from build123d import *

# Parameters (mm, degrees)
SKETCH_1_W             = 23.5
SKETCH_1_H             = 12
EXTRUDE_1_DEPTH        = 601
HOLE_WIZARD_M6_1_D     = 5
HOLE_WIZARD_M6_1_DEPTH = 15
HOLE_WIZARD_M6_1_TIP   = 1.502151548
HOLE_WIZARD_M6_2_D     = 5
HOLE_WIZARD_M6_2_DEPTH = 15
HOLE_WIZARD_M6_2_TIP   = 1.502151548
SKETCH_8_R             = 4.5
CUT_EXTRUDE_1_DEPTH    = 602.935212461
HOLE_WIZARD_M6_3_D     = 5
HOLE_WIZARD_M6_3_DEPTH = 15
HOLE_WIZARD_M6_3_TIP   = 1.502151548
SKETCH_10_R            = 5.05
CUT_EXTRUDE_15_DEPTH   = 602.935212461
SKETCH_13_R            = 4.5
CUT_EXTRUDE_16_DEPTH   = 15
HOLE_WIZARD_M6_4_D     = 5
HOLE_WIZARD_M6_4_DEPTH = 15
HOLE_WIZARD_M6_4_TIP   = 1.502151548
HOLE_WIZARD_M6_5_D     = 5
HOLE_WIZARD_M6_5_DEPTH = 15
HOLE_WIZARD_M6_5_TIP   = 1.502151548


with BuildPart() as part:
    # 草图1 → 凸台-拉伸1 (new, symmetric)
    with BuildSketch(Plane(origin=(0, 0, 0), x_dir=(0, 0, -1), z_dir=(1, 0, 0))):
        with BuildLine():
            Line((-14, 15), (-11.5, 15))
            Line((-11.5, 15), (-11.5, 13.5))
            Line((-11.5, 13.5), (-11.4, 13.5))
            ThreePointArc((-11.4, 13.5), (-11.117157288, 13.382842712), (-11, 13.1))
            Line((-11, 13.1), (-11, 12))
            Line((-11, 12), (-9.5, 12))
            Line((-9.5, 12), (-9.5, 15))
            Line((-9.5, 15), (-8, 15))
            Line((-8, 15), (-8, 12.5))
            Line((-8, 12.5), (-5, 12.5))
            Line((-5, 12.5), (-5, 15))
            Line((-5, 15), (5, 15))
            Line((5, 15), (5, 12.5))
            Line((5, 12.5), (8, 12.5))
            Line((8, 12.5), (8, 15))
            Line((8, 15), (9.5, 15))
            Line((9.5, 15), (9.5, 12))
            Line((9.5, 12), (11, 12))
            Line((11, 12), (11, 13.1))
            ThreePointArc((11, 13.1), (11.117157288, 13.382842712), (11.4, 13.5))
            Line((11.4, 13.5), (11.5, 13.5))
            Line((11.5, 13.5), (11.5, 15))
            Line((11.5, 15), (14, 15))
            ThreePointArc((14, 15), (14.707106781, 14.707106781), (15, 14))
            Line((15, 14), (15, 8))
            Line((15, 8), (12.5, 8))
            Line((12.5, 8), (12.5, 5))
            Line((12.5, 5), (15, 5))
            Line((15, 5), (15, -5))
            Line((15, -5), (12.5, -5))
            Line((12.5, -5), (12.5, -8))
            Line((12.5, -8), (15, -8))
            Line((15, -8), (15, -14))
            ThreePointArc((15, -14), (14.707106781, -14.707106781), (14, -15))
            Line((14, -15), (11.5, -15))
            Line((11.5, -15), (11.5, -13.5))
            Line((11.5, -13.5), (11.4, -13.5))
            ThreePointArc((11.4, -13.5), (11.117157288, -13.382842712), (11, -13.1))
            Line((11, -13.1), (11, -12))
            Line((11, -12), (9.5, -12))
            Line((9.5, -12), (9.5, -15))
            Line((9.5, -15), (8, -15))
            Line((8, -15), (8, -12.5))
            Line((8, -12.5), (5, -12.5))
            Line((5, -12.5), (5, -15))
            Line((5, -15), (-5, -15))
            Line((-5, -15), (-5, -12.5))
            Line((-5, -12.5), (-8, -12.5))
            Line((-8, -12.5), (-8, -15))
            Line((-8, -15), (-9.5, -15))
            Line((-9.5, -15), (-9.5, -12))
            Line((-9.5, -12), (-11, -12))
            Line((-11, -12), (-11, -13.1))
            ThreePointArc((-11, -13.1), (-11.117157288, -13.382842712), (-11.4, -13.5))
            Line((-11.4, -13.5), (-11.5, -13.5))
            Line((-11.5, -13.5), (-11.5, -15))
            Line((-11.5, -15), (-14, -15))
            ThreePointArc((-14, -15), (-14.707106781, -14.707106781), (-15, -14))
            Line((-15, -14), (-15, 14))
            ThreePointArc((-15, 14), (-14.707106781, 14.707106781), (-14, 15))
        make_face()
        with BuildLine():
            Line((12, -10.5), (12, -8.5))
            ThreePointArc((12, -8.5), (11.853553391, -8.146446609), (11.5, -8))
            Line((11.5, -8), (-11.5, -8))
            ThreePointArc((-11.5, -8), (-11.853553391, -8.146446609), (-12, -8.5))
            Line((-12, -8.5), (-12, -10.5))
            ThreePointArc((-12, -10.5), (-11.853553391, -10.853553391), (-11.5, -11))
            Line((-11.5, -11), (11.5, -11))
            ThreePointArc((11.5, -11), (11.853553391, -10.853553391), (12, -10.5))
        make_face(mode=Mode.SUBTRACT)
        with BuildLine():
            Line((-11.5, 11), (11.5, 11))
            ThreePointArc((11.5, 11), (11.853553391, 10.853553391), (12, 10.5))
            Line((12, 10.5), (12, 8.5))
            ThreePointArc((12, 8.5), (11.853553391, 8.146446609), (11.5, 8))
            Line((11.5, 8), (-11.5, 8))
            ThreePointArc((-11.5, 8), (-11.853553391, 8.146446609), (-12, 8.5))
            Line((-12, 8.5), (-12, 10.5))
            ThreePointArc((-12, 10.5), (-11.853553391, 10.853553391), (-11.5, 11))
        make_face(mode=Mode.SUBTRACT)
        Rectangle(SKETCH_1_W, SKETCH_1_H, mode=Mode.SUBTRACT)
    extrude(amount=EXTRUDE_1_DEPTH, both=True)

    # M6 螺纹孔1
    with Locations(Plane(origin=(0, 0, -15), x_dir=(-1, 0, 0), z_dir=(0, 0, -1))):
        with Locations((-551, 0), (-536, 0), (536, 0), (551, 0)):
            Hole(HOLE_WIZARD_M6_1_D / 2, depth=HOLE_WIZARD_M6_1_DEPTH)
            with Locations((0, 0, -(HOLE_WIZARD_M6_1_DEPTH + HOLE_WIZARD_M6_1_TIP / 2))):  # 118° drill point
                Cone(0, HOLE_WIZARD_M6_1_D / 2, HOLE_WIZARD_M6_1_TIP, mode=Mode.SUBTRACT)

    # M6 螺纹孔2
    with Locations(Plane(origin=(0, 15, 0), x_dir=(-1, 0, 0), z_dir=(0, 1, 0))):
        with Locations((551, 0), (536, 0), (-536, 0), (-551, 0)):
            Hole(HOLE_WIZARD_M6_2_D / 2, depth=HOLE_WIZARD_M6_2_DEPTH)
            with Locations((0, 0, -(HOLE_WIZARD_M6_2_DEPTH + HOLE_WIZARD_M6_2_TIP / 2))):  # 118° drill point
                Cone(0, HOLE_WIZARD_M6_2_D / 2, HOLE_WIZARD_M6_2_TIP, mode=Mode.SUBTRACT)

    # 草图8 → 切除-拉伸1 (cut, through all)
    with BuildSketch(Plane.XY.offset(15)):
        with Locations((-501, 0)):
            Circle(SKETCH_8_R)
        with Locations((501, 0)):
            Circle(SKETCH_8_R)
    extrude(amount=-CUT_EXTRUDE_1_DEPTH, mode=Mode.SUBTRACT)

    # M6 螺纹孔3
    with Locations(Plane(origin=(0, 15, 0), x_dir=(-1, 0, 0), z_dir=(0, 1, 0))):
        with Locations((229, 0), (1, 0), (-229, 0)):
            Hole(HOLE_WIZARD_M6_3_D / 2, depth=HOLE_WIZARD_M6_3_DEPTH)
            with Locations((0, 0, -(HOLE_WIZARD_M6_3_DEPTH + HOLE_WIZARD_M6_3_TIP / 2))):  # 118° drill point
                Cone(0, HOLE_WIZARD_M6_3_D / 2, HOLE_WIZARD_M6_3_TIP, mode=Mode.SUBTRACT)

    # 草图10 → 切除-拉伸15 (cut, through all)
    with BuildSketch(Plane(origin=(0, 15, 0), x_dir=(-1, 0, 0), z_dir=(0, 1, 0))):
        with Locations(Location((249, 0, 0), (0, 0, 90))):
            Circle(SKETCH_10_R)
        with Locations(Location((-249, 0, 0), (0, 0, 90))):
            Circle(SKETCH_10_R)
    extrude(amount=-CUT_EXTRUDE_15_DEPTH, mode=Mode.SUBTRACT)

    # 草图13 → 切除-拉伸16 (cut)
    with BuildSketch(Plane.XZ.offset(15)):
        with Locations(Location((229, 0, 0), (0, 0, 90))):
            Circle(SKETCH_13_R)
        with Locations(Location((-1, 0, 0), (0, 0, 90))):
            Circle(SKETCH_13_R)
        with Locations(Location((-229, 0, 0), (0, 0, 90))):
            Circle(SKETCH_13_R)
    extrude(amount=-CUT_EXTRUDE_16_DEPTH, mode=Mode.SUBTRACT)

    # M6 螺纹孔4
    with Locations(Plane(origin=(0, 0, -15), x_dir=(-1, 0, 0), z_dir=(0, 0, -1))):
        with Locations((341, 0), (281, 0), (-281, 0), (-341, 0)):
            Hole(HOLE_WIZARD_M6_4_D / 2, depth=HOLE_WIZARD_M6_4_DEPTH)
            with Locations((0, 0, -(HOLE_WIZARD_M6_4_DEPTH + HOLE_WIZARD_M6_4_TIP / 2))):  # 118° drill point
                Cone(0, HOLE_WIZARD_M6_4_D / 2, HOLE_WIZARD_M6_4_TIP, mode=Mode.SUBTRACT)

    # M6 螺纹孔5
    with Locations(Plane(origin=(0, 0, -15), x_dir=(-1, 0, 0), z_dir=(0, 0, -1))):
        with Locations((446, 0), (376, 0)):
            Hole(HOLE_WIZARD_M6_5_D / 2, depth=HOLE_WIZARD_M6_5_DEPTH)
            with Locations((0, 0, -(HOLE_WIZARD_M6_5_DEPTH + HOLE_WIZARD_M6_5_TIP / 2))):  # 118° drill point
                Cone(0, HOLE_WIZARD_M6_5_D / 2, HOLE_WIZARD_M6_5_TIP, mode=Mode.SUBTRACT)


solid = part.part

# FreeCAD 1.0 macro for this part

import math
import FreeCAD as App
import Part
import Sketcher

V = App.Vector
Q = App.Units.Quantity


def add_polygon(sketch, points):
    """Adds a closed chain of lines whose ends are joined by coincident constraints."""
    first, n = sketch.GeometryCount, len(points)
    for a, b in zip(points, points[1:] + points[:1]):
        sketch.addGeometry(Part.LineSegment(App.Vector(*a, 0), App.Vector(*b, 0)), False)
    for i in range(n):
        sketch.addConstraint(Sketcher.Constraint("Coincident", first + i, 2, first + (i + 1) % n, 1))

doc = App.newDocument("Part")
body = doc.addObject("PartDesign::Body", "Body")

sketch1 = body.newObject("Sketcher::SketchObject", "Sketch")
sketch1.AttachmentSupport = (doc.getObject("YZ_Plane"), [""])
sketch1.MapMode = "FlatFace"
sketch1.addGeometry(Part.LineSegment(V(15, 11.5, 0), V(15, 14, 0)), False)
sketch1.addGeometry(Part.ArcOfCircle(Part.Circle(V(14, 14, 0), V(0, 0, 1), 1), math.radians(0), math.radians(90)), False)
sketch1.addGeometry(Part.LineSegment(V(14, 15, 0), V(-14, 15, 0)), False)
sketch1.addGeometry(Part.ArcOfCircle(Part.Circle(V(-14, 14, 0), V(0, 0, 1), 1), math.radians(90), math.radians(180)), False)
sketch1.addGeometry(Part.LineSegment(V(-15, 14, 0), V(-15, 11.5, 0)), False)
sketch1.addGeometry(Part.LineSegment(V(-15, 11.5, 0), V(-13.5, 11.5, 0)), False)
sketch1.addGeometry(Part.LineSegment(V(-13.5, 11.5, 0), V(-13.5, 11.4, 0)), False)
sketch1.addGeometry(Part.ArcOfCircle(Part.Circle(V(-13.1, 11.4, 0), V(0, 0, 1), 0.4), math.radians(-180), math.radians(-90)), False)
sketch1.addGeometry(Part.LineSegment(V(-13.1, 11, 0), V(-12, 11, 0)), False)
sketch1.addGeometry(Part.LineSegment(V(-12, 11, 0), V(-12, 9.5, 0)), False)
sketch1.addGeometry(Part.LineSegment(V(-12, 9.5, 0), V(-15, 9.5, 0)), False)
sketch1.addGeometry(Part.LineSegment(V(-15, 9.5, 0), V(-15, 8, 0)), False)
sketch1.addGeometry(Part.LineSegment(V(-15, 8, 0), V(-12.5, 8, 0)), False)
sketch1.addGeometry(Part.LineSegment(V(-12.5, 8, 0), V(-12.5, 5, 0)), False)
sketch1.addGeometry(Part.LineSegment(V(-12.5, 5, 0), V(-15, 5, 0)), False)
sketch1.addGeometry(Part.LineSegment(V(-15, 5, 0), V(-15, -5, 0)), False)
sketch1.addGeometry(Part.LineSegment(V(-15, -5, 0), V(-12.5, -5, 0)), False)
sketch1.addGeometry(Part.LineSegment(V(-12.5, -5, 0), V(-12.5, -8, 0)), False)
sketch1.addGeometry(Part.LineSegment(V(-12.5, -8, 0), V(-15, -8, 0)), False)
sketch1.addGeometry(Part.LineSegment(V(-15, -8, 0), V(-15, -9.5, 0)), False)
sketch1.addGeometry(Part.LineSegment(V(-15, -9.5, 0), V(-12, -9.5, 0)), False)
sketch1.addGeometry(Part.LineSegment(V(-12, -9.5, 0), V(-12, -11, 0)), False)
sketch1.addGeometry(Part.LineSegment(V(-12, -11, 0), V(-13.1, -11, 0)), False)
sketch1.addGeometry(Part.ArcOfCircle(Part.Circle(V(-13.1, -11.4, 0), V(0, 0, 1), 0.4), math.radians(90), math.radians(180)), False)
sketch1.addGeometry(Part.LineSegment(V(-13.5, -11.4, 0), V(-13.5, -11.5, 0)), False)
sketch1.addGeometry(Part.LineSegment(V(-13.5, -11.5, 0), V(-15, -11.5, 0)), False)
sketch1.addGeometry(Part.LineSegment(V(-15, -11.5, 0), V(-15, -14, 0)), False)
sketch1.addGeometry(Part.ArcOfCircle(Part.Circle(V(-14, -14, 0), V(0, 0, 1), 1), math.radians(-180), math.radians(-90)), False)
sketch1.addGeometry(Part.LineSegment(V(-14, -15, 0), V(-8, -15, 0)), False)
sketch1.addGeometry(Part.LineSegment(V(-8, -15, 0), V(-8, -12.5, 0)), False)
sketch1.addGeometry(Part.LineSegment(V(-8, -12.5, 0), V(-5, -12.5, 0)), False)
sketch1.addGeometry(Part.LineSegment(V(-5, -12.5, 0), V(-5, -15, 0)), False)
sketch1.addGeometry(Part.LineSegment(V(-5, -15, 0), V(5, -15, 0)), False)
sketch1.addGeometry(Part.LineSegment(V(5, -15, 0), V(5, -12.5, 0)), False)
sketch1.addGeometry(Part.LineSegment(V(5, -12.5, 0), V(8, -12.5, 0)), False)
sketch1.addGeometry(Part.LineSegment(V(8, -12.5, 0), V(8, -15, 0)), False)
sketch1.addGeometry(Part.LineSegment(V(8, -15, 0), V(14, -15, 0)), False)
sketch1.addGeometry(Part.ArcOfCircle(Part.Circle(V(14, -14, 0), V(0, 0, 1), 1), math.radians(-90), math.radians(0)), False)
sketch1.addGeometry(Part.LineSegment(V(15, -14, 0), V(15, -11.5, 0)), False)
sketch1.addGeometry(Part.LineSegment(V(15, -11.5, 0), V(13.5, -11.5, 0)), False)
sketch1.addGeometry(Part.LineSegment(V(13.5, -11.5, 0), V(13.5, -11.4, 0)), False)
sketch1.addGeometry(Part.ArcOfCircle(Part.Circle(V(13.1, -11.4, 0), V(0, 0, 1), 0.4), math.radians(0), math.radians(90)), False)
sketch1.addGeometry(Part.LineSegment(V(13.1, -11, 0), V(12, -11, 0)), False)
sketch1.addGeometry(Part.LineSegment(V(12, -11, 0), V(12, -9.5, 0)), False)
sketch1.addGeometry(Part.LineSegment(V(12, -9.5, 0), V(15, -9.5, 0)), False)
sketch1.addGeometry(Part.LineSegment(V(15, -9.5, 0), V(15, -8, 0)), False)
sketch1.addGeometry(Part.LineSegment(V(15, -8, 0), V(12.5, -8, 0)), False)
sketch1.addGeometry(Part.LineSegment(V(12.5, -8, 0), V(12.5, -5, 0)), False)
sketch1.addGeometry(Part.LineSegment(V(12.5, -5, 0), V(15, -5, 0)), False)
sketch1.addGeometry(Part.LineSegment(V(15, -5, 0), V(15, 5, 0)), False)
sketch1.addGeometry(Part.LineSegment(V(15, 5, 0), V(12.5, 5, 0)), False)
sketch1.addGeometry(Part.LineSegment(V(12.5, 5, 0), V(12.5, 8, 0)), False)
sketch1.addGeometry(Part.LineSegment(V(12.5, 8, 0), V(15, 8, 0)), False)
sketch1.addGeometry(Part.LineSegment(V(15, 8, 0), V(15, 9.5, 0)), False)
sketch1.addGeometry(Part.LineSegment(V(15, 9.5, 0), V(12, 9.5, 0)), False)
sketch1.addGeometry(Part.LineSegment(V(12, 9.5, 0), V(12, 11, 0)), False)
sketch1.addGeometry(Part.LineSegment(V(12, 11, 0), V(13.1, 11, 0)), False)
sketch1.addGeometry(Part.ArcOfCircle(Part.Circle(V(13.1, 11.4, 0), V(0, 0, 1), 0.4), math.radians(-90), math.radians(0)), False)
sketch1.addGeometry(Part.LineSegment(V(13.5, 11.4, 0), V(13.5, 11.5, 0)), False)
sketch1.addGeometry(Part.LineSegment(V(13.5, 11.5, 0), V(15, 11.5, 0)), False)
sketch1.addGeometry(Part.ArcOfCircle(Part.Circle(V(-10.5, -11.5, 0), V(0, 0, 1), 0.5), math.radians(180), math.radians(270)), False)
sketch1.addGeometry(Part.LineSegment(V(-11, -11.5, 0), V(-11, 11.5, 0)), False)
sketch1.addGeometry(Part.ArcOfCircle(Part.Circle(V(-10.5, 11.5, 0), V(0, 0, 1), 0.5), math.radians(90), math.radians(180)), False)
sketch1.addGeometry(Part.LineSegment(V(-10.5, 12, 0), V(-8.5, 12, 0)), False)
sketch1.addGeometry(Part.ArcOfCircle(Part.Circle(V(-8.5, 11.5, 0), V(0, 0, 1), 0.5), math.radians(0), math.radians(90)), False)
sketch1.addGeometry(Part.LineSegment(V(-8, 11.5, 0), V(-8, -11.5, 0)), False)
sketch1.addGeometry(Part.ArcOfCircle(Part.Circle(V(-8.5, -11.5, 0), V(0, 0, 1), 0.5), math.radians(-90), math.radians(0)), False)
sketch1.addGeometry(Part.LineSegment(V(-8.5, -12, 0), V(-10.5, -12, 0)), False)
add_polygon(sketch1, [(-6, 11.75), (6, 11.75), (6, -11.75), (-6, -11.75)])
sketch1.addGeometry(Part.LineSegment(V(11, 11.5, 0), V(11, -11.5, 0)), False)
sketch1.addGeometry(Part.ArcOfCircle(Part.Circle(V(10.5, -11.5, 0), V(0, 0, 1), 0.5), math.radians(-90), math.radians(0)), False)
sketch1.addGeometry(Part.LineSegment(V(10.5, -12, 0), V(8.5, -12, 0)), False)
sketch1.addGeometry(Part.ArcOfCircle(Part.Circle(V(8.5, -11.5, 0), V(0, 0, 1), 0.5), math.radians(180), math.radians(270)), False)
sketch1.addGeometry(Part.LineSegment(V(8, -11.5, 0), V(8, 11.5, 0)), False)
sketch1.addGeometry(Part.ArcOfCircle(Part.Circle(V(8.5, 11.5, 0), V(0, 0, 1), 0.5), math.radians(90), math.radians(180)), False)
sketch1.addGeometry(Part.LineSegment(V(8.5, 12, 0), V(10.5, 12, 0)), False)
sketch1.addGeometry(Part.ArcOfCircle(Part.Circle(V(10.5, 11.5, 0), V(0, 0, 1), 0.5), math.radians(0), math.radians(90)), False)
sketch1.addConstraint([
    Sketcher.Constraint("Tangent", 0, 2, 1, 1),
    Sketcher.Constraint("Tangent", 1, 2, 2, 1),
    Sketcher.Constraint("Tangent", 2, 2, 3, 1),
    Sketcher.Constraint("Tangent", 3, 2, 4, 1),
    Sketcher.Constraint("Coincident", 4, 2, 5, 1),
    Sketcher.Constraint("Coincident", 5, 2, 6, 1),
    Sketcher.Constraint("Tangent", 6, 2, 7, 1),
    Sketcher.Constraint("Tangent", 7, 2, 8, 1),
    Sketcher.Constraint("Coincident", 8, 2, 9, 1),
    Sketcher.Constraint("Coincident", 9, 2, 10, 1),
    Sketcher.Constraint("Coincident", 10, 2, 11, 1),
    Sketcher.Constraint("Coincident", 11, 2, 12, 1),
    Sketcher.Constraint("Coincident", 12, 2, 13, 1),
    Sketcher.Constraint("Coincident", 13, 2, 14, 1),
    Sketcher.Constraint("Coincident", 14, 2, 15, 1),
    Sketcher.Constraint("Coincident", 15, 2, 16, 1),
    Sketcher.Constraint("Coincident", 16, 2, 17, 1),
    Sketcher.Constraint("Coincident", 17, 2, 18, 1),
    Sketcher.Constraint("Coincident", 18, 2, 19, 1),
    Sketcher.Constraint("Coincident", 19, 2, 20, 1),
    Sketcher.Constraint("Coincident", 20, 2, 21, 1),
    Sketcher.Constraint("Coincident", 21, 2, 22, 1),
    Sketcher.Constraint("Tangent", 22, 2, 23, 1),
    Sketcher.Constraint("Tangent", 23, 2, 24, 1),
    Sketcher.Constraint("Coincident", 24, 2, 25, 1),
    Sketcher.Constraint("Coincident", 25, 2, 26, 1),
    Sketcher.Constraint("Tangent", 26, 2, 27, 1),
    Sketcher.Constraint("Tangent", 27, 2, 28, 1),
    Sketcher.Constraint("Coincident", 28, 2, 29, 1),
    Sketcher.Constraint("Coincident", 29, 2, 30, 1),
    Sketcher.Constraint("Coincident", 30, 2, 31, 1),
    Sketcher.Constraint("Coincident", 31, 2, 32, 1),
    Sketcher.Constraint("Coincident", 32, 2, 33, 1),
    Sketcher.Constraint("Coincident", 33, 2, 34, 1),
    Sketcher.Constraint("Coincident", 34, 2, 35, 1),
    Sketcher.Constraint("Coincident", 35, 2, 36, 1),
    Sketcher.Constraint("Tangent", 36, 2, 37, 1),
    Sketcher.Constraint("Tangent", 37, 2, 38, 1),
    Sketcher.Constraint("Coincident", 38, 2, 39, 1),
    Sketcher.Constraint("Coincident", 39, 2, 40, 1),
    Sketcher.Constraint("Tangent", 40, 2, 41, 1),
    Sketcher.Constraint("Tangent", 41, 2, 42, 1),
    Sketcher.Constraint("Coincident", 42, 2, 43, 1),
    Sketcher.Constraint("Coincident", 43, 2, 44, 1),
    Sketcher.Constraint("Coincident", 44, 2, 45, 1),
    Sketcher.Constraint("Coincident", 45, 2, 46, 1),
    Sketcher.Constraint("Coincident", 46, 2, 47, 1),
    Sketcher.Constraint("Coincident", 47, 2, 48, 1),
    Sketcher.Constraint("Coincident", 48, 2, 49, 1),
    Sketcher.Constraint("Coincident", 49, 2, 50, 1),
    Sketcher.Constraint("Coincident", 50, 2, 51, 1),
    Sketcher.Constraint("Coincident", 51, 2, 52, 1),
    Sketcher.Constraint("Coincident", 52, 2, 53, 1),
    Sketcher.Constraint("Coincident", 53, 2, 54, 1),
    Sketcher.Constraint("Coincident", 54, 2, 55, 1),
    Sketcher.Constraint("Coincident", 55, 2, 56, 1),
    Sketcher.Constraint("Tangent", 56, 2, 57, 1),
    Sketcher.Constraint("Tangent", 57, 2, 58, 1),
    Sketcher.Constraint("Coincident", 58, 2, 59, 1),
    Sketcher.Constraint("Coincident", 59, 2, 0, 1),
    Sketcher.Constraint("Tangent", 60, 1, 61, 1),
    Sketcher.Constraint("Tangent", 61, 2, 62, 2),
    Sketcher.Constraint("Tangent", 62, 1, 63, 1),
    Sketcher.Constraint("Tangent", 63, 2, 64, 2),
    Sketcher.Constraint("Tangent", 64, 1, 65, 1),
    Sketcher.Constraint("Tangent", 65, 2, 66, 2),
    Sketcher.Constraint("Tangent", 66, 1, 67, 1),
    Sketcher.Constraint("Tangent", 67, 2, 60, 2),
    Sketcher.Constraint("Tangent", 72, 2, 73, 2),
    Sketcher.Constraint("Tangent", 73, 1, 74, 1),
    Sketcher.Constraint("Tangent", 74, 2, 75, 2),
    Sketcher.Constraint("Tangent", 75, 1, 76, 1),
    Sketcher.Constraint("Tangent", 76, 2, 77, 2),
    Sketcher.Constraint("Tangent", 77, 1, 78, 1),
    Sketcher.Constraint("Tangent", 78, 2, 79, 2),
    Sketcher.Constraint("Tangent", 79, 1, 72, 1),
    Sketcher.Constraint("Vertical", 0),
    Sketcher.Constraint("Horizontal", 2),
    Sketcher.Constraint("Vertical", 4),
    Sketcher.Constraint("Horizontal", 5),
    Sketcher.Constraint("Vertical", 6),
    Sketcher.Constraint("Horizontal", 8),
    Sketcher.Constraint("Vertical", 9),
    Sketcher.Constraint("Horizontal", 10),
    Sketcher.Constraint("Vertical", 11),
    Sketcher.Constraint("Horizontal", 12),
    Sketcher.Constraint("Vertical", 13),
    Sketcher.Constraint("Horizontal", 14),
    Sketcher.Constraint("Vertical", 15),
    Sketcher.Constraint("Horizontal", 16),
    Sketcher.Constraint("Vertical", 17),
    Sketcher.Constraint("Horizontal", 18),
    Sketcher.Constraint("Vertical", 19),
    Sketcher.Constraint("Horizontal", 20),
    Sketcher.Constraint("Vertical", 21),
    Sketcher.Constraint("Horizontal", 22),
    Sketcher.Constraint("Vertical", 24),
    Sketcher.Constraint("Horizontal", 25),
    Sketcher.Constraint("Vertical", 26),
    Sketcher.Constraint("Horizontal", 28),
    Sketcher.Constraint("Vertical", 29),
    Sketcher.Constraint("Horizontal", 30),
    Sketcher.Constraint("Vertical", 31),
    Sketcher.Constraint("Horizontal", 32),
    Sketcher.Constraint("Vertical", 33),
    Sketcher.Constraint("Horizontal", 34),
    Sketcher.Constraint("Vertical", 35),
    Sketcher.Constraint("Horizontal", 36),
    Sketcher.Constraint("Vertical", 38),
    Sketcher.Constraint("Horizontal", 39),
    Sketcher.Constraint("Vertical", 40),
    Sketcher.Constraint("Horizontal", 42),
    Sketcher.Constraint("Vertical", 43),
    Sketcher.Constraint("Horizontal", 44),
    Sketcher.Constraint("Vertical", 45),
    Sketcher.Constraint("Horizontal", 46),
    Sketcher.Constraint("Vertical", 47),
    Sketcher.Constraint("Horizontal", 48),
    Sketcher.Constraint("Vertical", 49),
    Sketcher.Constraint("Horizontal", 50),
    Sketcher.Constraint("Vertical", 51),
    Sketcher.Constraint("Horizontal", 52),
    Sketcher.Constraint("Vertical", 53),
    Sketcher.Constraint("Horizontal", 54),
    Sketcher.Constraint("Vertical", 55),
    Sketcher.Constraint("Horizontal", 56),
    Sketcher.Constraint("Vertical", 58),
    Sketcher.Constraint("Horizontal", 59),
    Sketcher.Constraint("Vertical", 61),
    Sketcher.Constraint("Horizontal", 63),
    Sketcher.Constraint("Vertical", 65),
    Sketcher.Constraint("Horizontal", 67),
    Sketcher.Constraint("Horizontal", 68),
    Sketcher.Constraint("Vertical", 69),
    Sketcher.Constraint("Horizontal", 70),
    Sketcher.Constraint("Vertical", 71),
    Sketcher.Constraint("Vertical", 72),
    Sketcher.Constraint("Horizontal", 74),
    Sketcher.Constraint("Vertical", 76),
    Sketcher.Constraint("Horizontal", 78),
    Sketcher.Constraint("Equal", 1, 3),
    Sketcher.Constraint("Equal", 7, 23),
    Sketcher.Constraint("Equal", 3, 27),
    Sketcher.Constraint("Equal", 27, 37),
    Sketcher.Constraint("Equal", 23, 41),
    Sketcher.Constraint("Equal", 41, 57),
    Sketcher.Constraint("Equal", 60, 62),
    Sketcher.Constraint("Equal", 62, 64),
    Sketcher.Constraint("Equal", 64, 66),
    Sketcher.Constraint("Equal", 66, 73),
    Sketcher.Constraint("Equal", 73, 75),
    Sketcher.Constraint("Equal", 75, 77),
    Sketcher.Constraint("Equal", 77, 79),
    Sketcher.Constraint("Symmetric", 1, 3, 27, 3, -1, 1),
    Sketcher.Constraint("Symmetric", 3, 3, 37, 3, -1, 1),
    Sketcher.Constraint("Symmetric", 7, 3, 41, 3, -1, 1),
    Sketcher.Constraint("Symmetric", 23, 3, 57, 3, -1, 1),
    Sketcher.Constraint("Symmetric", 62, 3, 73, 3, -1, 1),
    Sketcher.Constraint("Symmetric", 66, 3, 77, 3, -1, 1),
    Sketcher.Constraint("Symmetric", 9, 2, 43, 2, -1, 1),
    Sketcher.Constraint("Symmetric", 11, 2, 45, 2, -1, 1),
    Sketcher.Constraint("Symmetric", 13, 2, 47, 2, -1, 1),
    Sketcher.Constraint("Symmetric", 15, 2, 49, 2, -1, 1),
    Sketcher.Constraint("Symmetric", 17, 2, 51, 2, -1, 1),
    Sketcher.Constraint("Symmetric", 19, 2, 53, 2, -1, 1),
    Sketcher.Constraint("Symmetric", 68, 2, 70, 2, -1, 1),
    Sketcher.Constraint("Symmetric", 23, 3, 41, 3, -2),
    Sketcher.Constraint("Symmetric", 30, 2, 33, 2, -2),
    Sketcher.Constraint("Symmetric", 25, 2, 38, 2, -2),
    Sketcher.Constraint("Symmetric", 20, 2, 43, 2, -2),
    Sketcher.Constraint("Symmetric", 18, 2, 45, 2, -2),
    Sketcher.Constraint("Symmetric", 16, 2, 47, 2, -2),
    Sketcher.Constraint("Horizontal", 66, 3, 73, 3),
    Sketcher.Constraint("Horizontal", 79, 3, 4, 2),
    Sketcher.Constraint("Horizontal", 75, 3, 24, 2),
    Sketcher.Constraint("Horizontal", 28, 2, 31, 2),
    Sketcher.Constraint("Horizontal", 5, 2, 58, 2),
    Sketcher.Constraint("Vertical", 4, 2, 10, 2),
    Sketcher.Constraint("Vertical", 11, 2, 14, 2),
    Sketcher.Constraint("Vertical", 43, 2, 54, 2),
    Sketcher.Constraint("Vertical", 29, 2, 64, 1),
    Sketcher.Constraint("Vertical", 35, 2, 75, 1),
    Sketcher.Constraint("Equal", 20, 30),
    Sketcher.Constraint("Equal", 52, 0),
    Sketcher.Constraint("Equal", 59, 9),
    Sketcher.Constraint("Equal", 9, 11),
    Sketcher.Constraint("Equal", 54, 13),
    Sketcher.Constraint("Equal", 32, 15),
    Sketcher.Constraint("Equal", 26, 29),
    Sketcher.Constraint("Radius", 1, Q("1 mm")),
    Sketcher.Constraint("Radius", 7, Q("0.4 mm")),
    Sketcher.Constraint("Radius", 60, Q("0.5 mm")),
    Sketcher.Constraint("DistanceX", 2, 2, 2, 1, Q("28 mm")),
    Sketcher.Constraint("DistanceX", 10, 2, 10, 1, Q("3 mm")),
    Sketcher.Constraint("DistanceX", 28, 1, 28, 2, Q("6 mm")),
    Sketcher.Constraint("DistanceX", 63, 1, 63, 2, Q("2 mm")),
    Sketcher.Constraint("DistanceX", 68, 1, 68, 2, Q("12 mm")),
    Sketcher.Constraint("DistanceY", 61, 1, 61, 2, Q("23 mm")),
    Sketcher.Constraint("DistanceX", 5, 1, 5, 2, Q("1.5 mm")),
    Sketcher.Constraint("DistanceX", 12, 1, 12, 2, Q("2.5 mm")),
    Sketcher.Constraint("DistanceY", 69, 2, 69, 1, Q("23.5 mm")),
])
pad1 = body.newObject("PartDesign::Pad", "Pad")
pad1.Profile = sketch1
pad1.Length = 1202
pad1.Midplane = True

sketch2 = body.newObject("Sketcher::SketchObject", "Sketch001")
sketch2.AttachmentSupport = (doc.getObject("XY_Plane"), [""])
sketch2.MapMode = "FlatFace"
sketch2.AttachmentOffset = App.Placement(V(0, 0, -15), App.Rotation())
sketch2.addGeometry([
    Part.Circle(V(551, 0, 0), V(0, 0, 1), 2.5),
    Part.Circle(V(536, 0, 0), V(0, 0, 1), 2.5),
    Part.Circle(V(-536, 0, 0), V(0, 0, 1), 2.5),
    Part.Circle(V(-551, 0, 0), V(0, 0, 1), 2.5),
], False)
sketch2.addConstraint([
    Sketcher.Constraint("Equal", 0, 1),
    Sketcher.Constraint("Equal", 1, 2),
    Sketcher.Constraint("Equal", 2, 3),
    Sketcher.Constraint("Symmetric", 1, 3, 2, 3, -1, 1),
    Sketcher.Constraint("Symmetric", 0, 3, 3, 3, -1, 1),
    Sketcher.Constraint("PointOnObject", 0, 3, -1),
    Sketcher.Constraint("PointOnObject", 1, 3, -1),
    Sketcher.Constraint("Diameter", 0, Q("5 mm")),
    Sketcher.Constraint("DistanceX", -1, 1, 0, 3, Q("551 mm")),
    Sketcher.Constraint("DistanceX", -1, 1, 1, 3, Q("536 mm")),
])
doc.recompute()
hole = body.newObject("PartDesign::Hole", "Hole")
hole.Profile = sketch2
hole.ThreadType = "None"
hole.Diameter = 5
hole.DepthType = "Dimension"
hole.Depth = 15
hole.DrillPoint = "Angled"
hole.DrillPointAngle = 118
hole.Reversed = True

sketch3 = body.newObject("Sketcher::SketchObject", "Sketch002")
sketch3.AttachmentSupport = (doc.getObject("XZ_Plane"), [""])
sketch3.MapMode = "FlatFace"
sketch3.AttachmentOffset = App.Placement(V(0, 0, -15), App.Rotation())
sketch3.addGeometry([
    Part.Circle(V(-551, 0, 0), V(0, 0, 1), 2.5),
    Part.Circle(V(-536, 0, 0), V(0, 0, 1), 2.5),
    Part.Circle(V(536, 0, 0), V(0, 0, 1), 2.5),
    Part.Circle(V(551, 0, 0), V(0, 0, 1), 2.5),
], False)
sketch3.addConstraint([
    Sketcher.Constraint("Equal", 0, 1),
    Sketcher.Constraint("Equal", 1, 2),
    Sketcher.Constraint("Equal", 2, 3),
    Sketcher.Constraint("Symmetric", 1, 3, 2, 3, -1, 1),
    Sketcher.Constraint("Symmetric", 0, 3, 3, 3, -1, 1),
    Sketcher.Constraint("PointOnObject", 0, 3, -1),
    Sketcher.Constraint("PointOnObject", 1, 3, -1),
    Sketcher.Constraint("Diameter", 0, Q("5 mm")),
    Sketcher.Constraint("DistanceX", 0, 3, -1, 1, Q("551 mm")),
    Sketcher.Constraint("DistanceX", 1, 3, -1, 1, Q("536 mm")),
])
doc.recompute()
hole2 = body.newObject("PartDesign::Hole", "Hole001")
hole2.Profile = sketch3
hole2.ThreadType = "None"
hole2.Diameter = 5
hole2.DepthType = "Dimension"
hole2.Depth = 15
hole2.DrillPoint = "Angled"
hole2.DrillPointAngle = 118
hole2.Reversed = True

sketch4 = body.newObject("Sketcher::SketchObject", "Sketch003")
sketch4.AttachmentSupport = (doc.getObject("XY_Plane"), [""])
sketch4.MapMode = "FlatFace"
sketch4.AttachmentOffset = App.Placement(V(0, 0, 15), App.Rotation())
sketch4.addGeometry([
    Part.Circle(V(-501, 0, 0), V(0, 0, 1), 4.5),
    Part.Circle(V(501, 0, 0), V(0, 0, 1), 4.5),
], False)
sketch4.addConstraint([
    Sketcher.Constraint("Equal", 0, 1),
    Sketcher.Constraint("Symmetric", 0, 3, 1, 3, -1, 1),
    Sketcher.Constraint("PointOnObject", 0, 3, -1),
    Sketcher.Constraint("Diameter", 0, Q("9 mm")),
    Sketcher.Constraint("DistanceX", 0, 3, -1, 1, Q("501 mm")),
])
pocket1 = body.newObject("PartDesign::Pocket", "Pocket")
pocket1.Profile = sketch4
pocket1.Type = "ThroughAll"

sketch5 = body.newObject("Sketcher::SketchObject", "Sketch004")
sketch5.AttachmentSupport = (doc.getObject("XZ_Plane"), [""])
sketch5.MapMode = "FlatFace"
sketch5.AttachmentOffset = App.Placement(V(0, 0, -15), App.Rotation())
sketch5.addGeometry([
    Part.Circle(V(-229, 0, 0), V(0, 0, 1), 2.5),
    Part.Circle(V(-1, 0, 0), V(0, 0, 1), 2.5),
    Part.Circle(V(229, 0, 0), V(0, 0, 1), 2.5),
], False)
sketch5.addConstraint([
    Sketcher.Constraint("Equal", 0, 1),
    Sketcher.Constraint("Equal", 1, 2),
    Sketcher.Constraint("Symmetric", 0, 3, 2, 3, -1, 1),
    Sketcher.Constraint("PointOnObject", 0, 3, -1),
    Sketcher.Constraint("PointOnObject", 1, 3, -1),
    Sketcher.Constraint("Diameter", 0, Q("5 mm")),
    Sketcher.Constraint("DistanceX", 0, 3, -1, 1, Q("229 mm")),
    Sketcher.Constraint("DistanceX", 1, 3, -1, 1, Q("1 mm")),
])
doc.recompute()
hole3 = body.newObject("PartDesign::Hole", "Hole002")
hole3.Profile = sketch5
hole3.ThreadType = "None"
hole3.Diameter = 5
hole3.DepthType = "Dimension"
hole3.Depth = 15
hole3.DrillPoint = "Angled"
hole3.DrillPointAngle = 118
hole3.Reversed = True

sketch6 = body.newObject("Sketcher::SketchObject", "Sketch005")
sketch6.AttachmentSupport = (doc.getObject("XZ_Plane"), [""])
sketch6.MapMode = "FlatFace"
sketch6.AttachmentOffset = App.Placement(V(0, 0, -15), App.Rotation())
sketch6.addGeometry([
    Part.Circle(V(-249, 0, 0), V(0, 0, 1), 5.05),
    Part.Circle(V(249, 0, 0), V(0, 0, 1), 5.05),
], False)
sketch6.addConstraint([
    Sketcher.Constraint("Equal", 0, 1),
    Sketcher.Constraint("Symmetric", 0, 3, 1, 3, -1, 1),
    Sketcher.Constraint("PointOnObject", 0, 3, -1),
    Sketcher.Constraint("Diameter", 0, Q("10.1 mm")),
    Sketcher.Constraint("DistanceX", 0, 3, -1, 1, Q("249 mm")),
])
pocket2 = body.newObject("PartDesign::Pocket", "Pocket001")
pocket2.Profile = sketch6
pocket2.Type = "ThroughAll"
pocket2.Reversed = True

sketch7 = body.newObject("Sketcher::SketchObject", "Sketch006")
sketch7.AttachmentSupport = (doc.getObject("XZ_Plane"), [""])
sketch7.MapMode = "FlatFace"
sketch7.AttachmentOffset = App.Placement(V(0, 0, 15), App.Rotation())
sketch7.addGeometry([
    Part.Circle(V(229, 0, 0), V(0, 0, 1), 4.5),
    Part.Circle(V(-1, 0, 0), V(0, 0, 1), 4.5),
    Part.Circle(V(-229, 0, 0), V(0, 0, 1), 4.5),
], False)
sketch7.addConstraint([
    Sketcher.Constraint("Equal", 0, 1),
    Sketcher.Constraint("Equal", 1, 2),
    Sketcher.Constraint("Symmetric", 0, 3, 2, 3, -1, 1),
    Sketcher.Constraint("PointOnObject", 0, 3, -1),
    Sketcher.Constraint("PointOnObject", 1, 3, -1),
    Sketcher.Constraint("Diameter", 0, Q("9 mm")),
    Sketcher.Constraint("DistanceX", -1, 1, 0, 3, Q("229 mm")),
    Sketcher.Constraint("DistanceX", 1, 3, -1, 1, Q("1 mm")),
])
pocket3 = body.newObject("PartDesign::Pocket", "Pocket002")
pocket3.Profile = sketch7
pocket3.Length = 15

sketch8 = body.newObject("Sketcher::SketchObject", "Sketch007")
sketch8.AttachmentSupport = (doc.getObject("XY_Plane"), [""])
sketch8.MapMode = "FlatFace"
sketch8.AttachmentOffset = App.Placement(V(0, 0, -15), App.Rotation())
sketch8.addGeometry([
    Part.Circle(V(-341, 0, 0), V(0, 0, 1), 2.5),
    Part.Circle(V(-281, 0, 0), V(0, 0, 1), 2.5),
    Part.Circle(V(281, 0, 0), V(0, 0, 1), 2.5),
    Part.Circle(V(341, 0, 0), V(0, 0, 1), 2.5),
], False)
sketch8.addConstraint([
    Sketcher.Constraint("Equal", 0, 1),
    Sketcher.Constraint("Equal", 1, 2),
    Sketcher.Constraint("Equal", 2, 3),
    Sketcher.Constraint("Symmetric", 1, 3, 2, 3, -1, 1),
    Sketcher.Constraint("Symmetric", 0, 3, 3, 3, -1, 1),
    Sketcher.Constraint("PointOnObject", 0, 3, -1),
    Sketcher.Constraint("PointOnObject", 1, 3, -1),
    Sketcher.Constraint("Diameter", 0, Q("5 mm")),
    Sketcher.Constraint("DistanceX", 0, 3, -1, 1, Q("341 mm")),
    Sketcher.Constraint("DistanceX", 1, 3, -1, 1, Q("281 mm")),
])
doc.recompute()
hole4 = body.newObject("PartDesign::Hole", "Hole003")
hole4.Profile = sketch8
hole4.ThreadType = "None"
hole4.Diameter = 5
hole4.DepthType = "Dimension"
hole4.Depth = 15
hole4.DrillPoint = "Angled"
hole4.DrillPointAngle = 118
hole4.Reversed = True

sketch9 = body.newObject("Sketcher::SketchObject", "Sketch008")
sketch9.AttachmentSupport = (doc.getObject("XY_Plane"), [""])
sketch9.MapMode = "FlatFace"
sketch9.AttachmentOffset = App.Placement(V(0, 0, -15), App.Rotation())
sketch9.addGeometry([
    Part.Circle(V(-446, 0, 0), V(0, 0, 1), 2.5),
    Part.Circle(V(-376, 0, 0), V(0, 0, 1), 2.5),
], False)
sketch9.addConstraint([
    Sketcher.Constraint("Equal", 0, 1),
    Sketcher.Constraint("PointOnObject", 0, 3, -1),
    Sketcher.Constraint("PointOnObject", 1, 3, -1),
    Sketcher.Constraint("Diameter", 0, Q("5 mm")),
    Sketcher.Constraint("DistanceX", 0, 3, -1, 1, Q("446 mm")),
    Sketcher.Constraint("DistanceX", 1, 3, -1, 1, Q("376 mm")),
])
doc.recompute()
hole5 = body.newObject("PartDesign::Hole", "Hole004")
hole5.Profile = sketch9
hole5.ThreadType = "None"
hole5.Diameter = 5
hole5.DepthType = "Dimension"
hole5.Depth = 15
hole5.DrillPoint = "Angled"
hole5.DrillPointAngle = 118
hole5.Reversed = True

doc.recompute()
